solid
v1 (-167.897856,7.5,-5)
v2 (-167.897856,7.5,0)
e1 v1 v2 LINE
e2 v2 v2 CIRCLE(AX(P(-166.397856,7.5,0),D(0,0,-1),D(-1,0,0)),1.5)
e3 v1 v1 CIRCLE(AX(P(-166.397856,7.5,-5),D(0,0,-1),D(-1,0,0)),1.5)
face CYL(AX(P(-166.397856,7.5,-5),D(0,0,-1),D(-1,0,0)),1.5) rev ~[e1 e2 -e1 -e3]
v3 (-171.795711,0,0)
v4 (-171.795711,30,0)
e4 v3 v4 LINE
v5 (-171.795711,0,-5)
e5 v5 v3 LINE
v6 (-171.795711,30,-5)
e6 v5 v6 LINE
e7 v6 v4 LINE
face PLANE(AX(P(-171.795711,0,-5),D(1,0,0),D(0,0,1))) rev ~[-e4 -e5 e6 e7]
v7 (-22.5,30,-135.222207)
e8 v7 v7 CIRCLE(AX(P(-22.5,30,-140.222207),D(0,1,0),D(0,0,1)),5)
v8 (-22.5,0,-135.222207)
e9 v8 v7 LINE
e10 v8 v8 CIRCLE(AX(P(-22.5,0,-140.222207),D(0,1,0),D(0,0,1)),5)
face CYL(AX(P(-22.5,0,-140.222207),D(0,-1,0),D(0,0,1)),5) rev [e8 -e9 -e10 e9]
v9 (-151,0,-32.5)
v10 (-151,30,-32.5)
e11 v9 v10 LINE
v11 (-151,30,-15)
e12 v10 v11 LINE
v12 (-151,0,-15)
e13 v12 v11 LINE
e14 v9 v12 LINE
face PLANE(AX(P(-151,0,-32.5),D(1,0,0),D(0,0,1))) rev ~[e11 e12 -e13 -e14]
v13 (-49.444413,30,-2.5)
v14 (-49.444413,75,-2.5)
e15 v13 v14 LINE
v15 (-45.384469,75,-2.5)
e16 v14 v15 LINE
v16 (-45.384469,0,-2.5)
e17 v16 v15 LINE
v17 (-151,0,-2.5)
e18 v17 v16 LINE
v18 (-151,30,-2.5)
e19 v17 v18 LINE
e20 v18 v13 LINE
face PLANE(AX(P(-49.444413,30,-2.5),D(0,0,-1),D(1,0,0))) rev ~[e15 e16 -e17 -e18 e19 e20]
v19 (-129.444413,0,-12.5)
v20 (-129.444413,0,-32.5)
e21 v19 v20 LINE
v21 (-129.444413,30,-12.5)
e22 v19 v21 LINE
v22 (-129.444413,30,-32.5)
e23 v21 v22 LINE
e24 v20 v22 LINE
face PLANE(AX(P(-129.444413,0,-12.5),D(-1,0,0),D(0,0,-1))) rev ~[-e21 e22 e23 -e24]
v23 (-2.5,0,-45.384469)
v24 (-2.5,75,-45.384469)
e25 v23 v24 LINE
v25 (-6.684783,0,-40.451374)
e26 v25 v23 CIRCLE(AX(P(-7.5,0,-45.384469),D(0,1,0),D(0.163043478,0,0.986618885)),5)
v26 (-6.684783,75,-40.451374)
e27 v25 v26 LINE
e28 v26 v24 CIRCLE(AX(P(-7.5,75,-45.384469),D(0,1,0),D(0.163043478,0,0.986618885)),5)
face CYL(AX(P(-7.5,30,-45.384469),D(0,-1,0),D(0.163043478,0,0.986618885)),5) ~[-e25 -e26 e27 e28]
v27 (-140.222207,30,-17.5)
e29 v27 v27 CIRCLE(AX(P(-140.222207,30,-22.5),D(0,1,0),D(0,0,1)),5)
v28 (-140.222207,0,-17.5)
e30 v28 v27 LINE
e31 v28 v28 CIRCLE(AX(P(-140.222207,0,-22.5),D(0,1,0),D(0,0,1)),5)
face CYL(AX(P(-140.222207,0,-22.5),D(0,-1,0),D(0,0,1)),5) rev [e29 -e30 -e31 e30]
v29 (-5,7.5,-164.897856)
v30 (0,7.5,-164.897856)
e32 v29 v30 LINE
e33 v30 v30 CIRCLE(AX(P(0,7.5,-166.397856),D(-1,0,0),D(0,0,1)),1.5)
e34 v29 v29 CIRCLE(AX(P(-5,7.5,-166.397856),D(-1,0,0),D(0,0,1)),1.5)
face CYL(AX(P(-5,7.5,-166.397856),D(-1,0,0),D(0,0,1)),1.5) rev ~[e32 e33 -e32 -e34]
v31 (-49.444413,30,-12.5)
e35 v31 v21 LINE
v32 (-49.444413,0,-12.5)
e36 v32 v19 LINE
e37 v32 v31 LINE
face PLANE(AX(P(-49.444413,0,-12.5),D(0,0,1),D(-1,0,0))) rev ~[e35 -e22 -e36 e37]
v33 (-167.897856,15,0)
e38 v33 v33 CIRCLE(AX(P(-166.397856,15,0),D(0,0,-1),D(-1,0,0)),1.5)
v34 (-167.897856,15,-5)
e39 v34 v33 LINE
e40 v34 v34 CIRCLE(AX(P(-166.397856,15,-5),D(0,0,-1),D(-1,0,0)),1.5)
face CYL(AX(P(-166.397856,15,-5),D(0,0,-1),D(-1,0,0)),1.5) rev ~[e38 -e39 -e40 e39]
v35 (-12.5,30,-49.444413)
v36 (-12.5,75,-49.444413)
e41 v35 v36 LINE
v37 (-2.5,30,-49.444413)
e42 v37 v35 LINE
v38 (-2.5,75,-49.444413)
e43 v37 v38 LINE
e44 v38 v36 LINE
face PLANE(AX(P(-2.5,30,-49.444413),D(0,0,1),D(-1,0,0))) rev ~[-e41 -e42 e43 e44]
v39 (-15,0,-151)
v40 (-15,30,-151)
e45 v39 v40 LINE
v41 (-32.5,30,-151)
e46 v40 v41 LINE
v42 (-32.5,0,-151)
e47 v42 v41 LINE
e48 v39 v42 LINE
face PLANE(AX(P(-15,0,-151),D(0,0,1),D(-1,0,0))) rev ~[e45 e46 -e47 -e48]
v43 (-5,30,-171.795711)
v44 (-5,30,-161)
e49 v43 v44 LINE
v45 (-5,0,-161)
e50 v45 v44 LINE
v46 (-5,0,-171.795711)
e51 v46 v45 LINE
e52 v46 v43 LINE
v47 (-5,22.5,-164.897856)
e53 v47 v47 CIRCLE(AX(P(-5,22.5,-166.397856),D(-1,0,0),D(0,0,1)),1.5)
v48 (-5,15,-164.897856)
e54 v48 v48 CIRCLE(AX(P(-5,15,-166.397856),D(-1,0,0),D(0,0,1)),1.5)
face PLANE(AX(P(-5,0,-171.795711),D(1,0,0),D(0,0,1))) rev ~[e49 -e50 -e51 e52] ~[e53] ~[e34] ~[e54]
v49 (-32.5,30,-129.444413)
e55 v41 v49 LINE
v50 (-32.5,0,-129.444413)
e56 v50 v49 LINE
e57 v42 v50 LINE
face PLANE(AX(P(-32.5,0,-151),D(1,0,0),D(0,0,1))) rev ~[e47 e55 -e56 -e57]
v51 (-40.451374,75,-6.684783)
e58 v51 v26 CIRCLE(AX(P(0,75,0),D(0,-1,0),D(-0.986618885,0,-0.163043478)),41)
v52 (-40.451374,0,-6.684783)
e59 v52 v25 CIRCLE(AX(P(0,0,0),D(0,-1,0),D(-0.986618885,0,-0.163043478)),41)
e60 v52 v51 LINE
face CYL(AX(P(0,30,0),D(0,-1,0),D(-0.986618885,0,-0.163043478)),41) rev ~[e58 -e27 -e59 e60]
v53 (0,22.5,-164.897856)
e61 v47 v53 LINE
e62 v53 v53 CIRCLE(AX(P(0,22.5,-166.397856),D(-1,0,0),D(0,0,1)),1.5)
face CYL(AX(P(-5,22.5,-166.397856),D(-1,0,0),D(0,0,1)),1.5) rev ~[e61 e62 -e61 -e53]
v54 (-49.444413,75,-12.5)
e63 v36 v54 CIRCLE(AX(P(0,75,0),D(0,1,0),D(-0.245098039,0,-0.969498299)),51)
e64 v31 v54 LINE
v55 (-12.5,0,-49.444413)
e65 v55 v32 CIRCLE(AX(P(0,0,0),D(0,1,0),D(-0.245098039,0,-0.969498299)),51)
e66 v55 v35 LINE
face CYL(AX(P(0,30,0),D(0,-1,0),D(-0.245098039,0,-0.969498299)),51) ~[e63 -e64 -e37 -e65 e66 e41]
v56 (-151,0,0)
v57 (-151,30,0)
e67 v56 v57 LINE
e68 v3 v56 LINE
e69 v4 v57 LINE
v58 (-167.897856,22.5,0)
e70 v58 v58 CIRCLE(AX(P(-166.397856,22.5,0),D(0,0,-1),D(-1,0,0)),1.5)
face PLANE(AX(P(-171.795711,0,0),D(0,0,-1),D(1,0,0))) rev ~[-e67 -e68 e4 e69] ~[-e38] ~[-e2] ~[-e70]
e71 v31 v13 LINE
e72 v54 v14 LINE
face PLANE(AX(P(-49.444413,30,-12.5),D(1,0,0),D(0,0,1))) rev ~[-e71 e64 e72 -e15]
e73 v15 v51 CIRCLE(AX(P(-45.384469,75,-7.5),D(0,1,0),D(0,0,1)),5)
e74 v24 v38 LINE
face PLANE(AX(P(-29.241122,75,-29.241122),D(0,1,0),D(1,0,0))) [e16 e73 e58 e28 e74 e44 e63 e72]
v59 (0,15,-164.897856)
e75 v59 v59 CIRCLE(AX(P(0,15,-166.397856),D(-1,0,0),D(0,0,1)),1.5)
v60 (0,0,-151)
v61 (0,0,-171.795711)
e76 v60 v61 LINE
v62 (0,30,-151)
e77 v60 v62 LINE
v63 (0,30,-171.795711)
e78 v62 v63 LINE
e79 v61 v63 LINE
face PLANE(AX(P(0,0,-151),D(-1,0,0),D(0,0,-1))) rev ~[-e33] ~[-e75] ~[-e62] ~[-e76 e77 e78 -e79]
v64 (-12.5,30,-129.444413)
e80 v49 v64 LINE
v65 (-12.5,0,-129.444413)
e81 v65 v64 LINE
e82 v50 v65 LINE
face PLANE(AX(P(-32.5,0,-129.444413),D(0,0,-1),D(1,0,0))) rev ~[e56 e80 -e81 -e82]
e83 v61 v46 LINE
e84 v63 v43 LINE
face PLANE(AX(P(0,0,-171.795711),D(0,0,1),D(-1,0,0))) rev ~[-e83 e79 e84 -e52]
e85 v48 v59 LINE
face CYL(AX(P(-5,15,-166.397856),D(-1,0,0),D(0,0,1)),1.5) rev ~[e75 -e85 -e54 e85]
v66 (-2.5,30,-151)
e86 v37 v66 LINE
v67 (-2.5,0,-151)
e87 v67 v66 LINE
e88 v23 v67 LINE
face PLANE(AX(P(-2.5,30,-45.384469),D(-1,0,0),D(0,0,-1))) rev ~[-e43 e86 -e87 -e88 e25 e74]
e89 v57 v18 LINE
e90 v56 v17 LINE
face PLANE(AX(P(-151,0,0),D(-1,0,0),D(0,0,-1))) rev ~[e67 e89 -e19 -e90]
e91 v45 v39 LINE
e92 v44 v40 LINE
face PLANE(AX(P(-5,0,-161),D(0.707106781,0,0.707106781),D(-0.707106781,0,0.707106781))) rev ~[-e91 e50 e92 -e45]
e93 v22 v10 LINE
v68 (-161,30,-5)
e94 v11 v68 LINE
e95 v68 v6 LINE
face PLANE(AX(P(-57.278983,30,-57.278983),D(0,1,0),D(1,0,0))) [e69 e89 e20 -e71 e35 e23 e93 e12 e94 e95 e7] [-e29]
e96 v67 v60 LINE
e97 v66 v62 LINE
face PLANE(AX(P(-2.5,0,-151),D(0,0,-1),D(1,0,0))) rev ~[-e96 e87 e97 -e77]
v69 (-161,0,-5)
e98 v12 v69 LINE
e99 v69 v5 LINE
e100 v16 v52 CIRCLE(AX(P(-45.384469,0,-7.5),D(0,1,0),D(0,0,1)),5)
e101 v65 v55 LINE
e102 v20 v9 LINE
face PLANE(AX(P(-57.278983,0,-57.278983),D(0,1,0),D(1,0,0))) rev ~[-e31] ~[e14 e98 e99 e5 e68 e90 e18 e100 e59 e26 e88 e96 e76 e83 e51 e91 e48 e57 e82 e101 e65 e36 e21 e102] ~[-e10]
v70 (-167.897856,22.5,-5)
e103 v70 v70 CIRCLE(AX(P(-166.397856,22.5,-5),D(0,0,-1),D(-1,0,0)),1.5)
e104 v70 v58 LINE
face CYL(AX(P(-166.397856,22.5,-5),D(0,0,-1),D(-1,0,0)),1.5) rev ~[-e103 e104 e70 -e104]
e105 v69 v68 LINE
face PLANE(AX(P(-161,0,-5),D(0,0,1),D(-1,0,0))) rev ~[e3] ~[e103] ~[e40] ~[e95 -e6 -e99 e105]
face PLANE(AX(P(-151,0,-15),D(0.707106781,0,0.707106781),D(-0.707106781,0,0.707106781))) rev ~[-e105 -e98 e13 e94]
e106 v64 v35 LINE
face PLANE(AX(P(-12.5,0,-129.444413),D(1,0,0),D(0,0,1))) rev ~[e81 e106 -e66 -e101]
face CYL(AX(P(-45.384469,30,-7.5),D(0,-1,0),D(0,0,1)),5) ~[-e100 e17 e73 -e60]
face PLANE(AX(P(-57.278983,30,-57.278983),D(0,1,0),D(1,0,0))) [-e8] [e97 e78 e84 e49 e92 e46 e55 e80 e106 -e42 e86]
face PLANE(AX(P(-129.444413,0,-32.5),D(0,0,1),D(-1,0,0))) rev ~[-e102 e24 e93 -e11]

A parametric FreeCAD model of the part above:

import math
import FreeCAD as App
import Part
import Sketcher

V = App.Vector

doc = App.newDocument("Part")
params = doc.addObject("Spreadsheet::Sheet", "Params")
for row, (alias, value) in enumerate([
    ("sketch1_diameter", "10 mm"),
    ("sketch1_radius", "51 mm"),
    ("sketch1_radius2", "41 mm"),
    ("sketch1_width", "5 mm"),
    ("sketch1_width2", "20 mm"),
    ("pad1_length", "30 mm"),
    ("sketch2_diameter", "3 mm"),
    ("pocket1_length", "10 mm"),
    ("sketch3_diameter", "3 mm"),
    ("pocket2_length", "10 mm"),
    ("sketch4_radius", "5 mm"),
    ("sketch4_radius2", "41 mm"),
    ("sketch4_radius3", "51 mm"),
    ("sketch4_width", "10 mm"),
    ("pad2_length", "45 mm"),
], start=1):
    params.set(f"A{row}", alias)
    params.set(f"B{row}", "=" + value)
    params.setAlias(f"B{row}", alias)

body = doc.addObject("PartDesign::Body", "Body")

sketch1 = body.newObject("Sketcher::SketchObject", "Sketch")
sketch1.AttachmentSupport = (doc.getObject("XZ_Plane"), [""])
sketch1.MapMode = "FlatFace"
sketch1.addGeometry(Part.LineSegment(V(-2.5, -45.4, 0), V(-2.5, -151, 0)), False)
sketch1.addGeometry(Part.LineSegment(V(-2.5, -151, 0), V(0, -151, 0)), False)
sketch1.addGeometry(Part.LineSegment(V(0, -151, 0), V(0, -171.8, 0)), False)
sketch1.addGeometry(Part.LineSegment(V(0, -171.8, 0), V(-5, -171.8, 0)), False)
sketch1.addGeometry(Part.LineSegment(V(-5, -171.8, 0), V(-5, -161, 0)), False)
sketch1.addGeometry(Part.LineSegment(V(-5, -161, 0), V(-15, -151, 0)), False)
sketch1.addGeometry(Part.LineSegment(V(-15, -151, 0), V(-32.5, -151, 0)), False)
sketch1.addGeometry(Part.LineSegment(V(-32.5, -151, 0), V(-32.5, -129.4, 0)), False)
sketch1.addGeometry(Part.LineSegment(V(-32.5, -129.4, 0), V(-12.5, -129.4, 0)), False)
sketch1.addGeometry(Part.LineSegment(V(-12.5, -129.4, 0), V(-12.5, -49.4, 0)), False)
sketch1.addGeometry(Part.ArcOfCircle(Part.Circle(V(0, 0, 0), V(0, 0, 1), 51), math.radians(-166), math.radians(-104)), False)
sketch1.addGeometry(Part.LineSegment(V(-49.4, -12.5, 0), V(-129.4, -12.5, 0)), False)
sketch1.addGeometry(Part.LineSegment(V(-129.4, -12.5, 0), V(-129.4, -32.5, 0)), False)
sketch1.addGeometry(Part.LineSegment(V(-129.4, -32.5, 0), V(-151, -32.5, 0)), False)
sketch1.addGeometry(Part.LineSegment(V(-151, -32.5, 0), V(-151, -15, 0)), False)
sketch1.addGeometry(Part.LineSegment(V(-151, -15, 0), V(-161, -5, 0)), False)
sketch1.addGeometry(Part.LineSegment(V(-161, -5, 0), V(-171.8, -5, 0)), False)
sketch1.addGeometry(Part.LineSegment(V(-171.8, -5, 0), V(-171.8, 0, 0)), False)
sketch1.addGeometry(Part.LineSegment(V(-171.8, 0, 0), V(-151, 0, 0)), False)
sketch1.addGeometry(Part.LineSegment(V(-151, 0, 0), V(-151, -2.5, 0)), False)
sketch1.addGeometry(Part.LineSegment(V(-151, -2.5, 0), V(-45.4, -2.5, 0)), False)
sketch1.addGeometry(Part.ArcOfCircle(Part.Circle(V(-45.4, -7.5, 0), V(0, 0, 1), 5), math.radians(9), math.radians(90)), False)
sketch1.addGeometry(Part.ArcOfCircle(Part.Circle(V(0, 0, 0), V(0, 0, 1), 41), math.radians(-171), math.radians(-99)), False)
sketch1.addGeometry(Part.ArcOfCircle(Part.Circle(V(-7.5, -45.4, 0), V(0, 0, 1), 5), math.radians(0), math.radians(81)), False)
sketch1.addGeometry(Part.Circle(V(-140.2, -22.5, 0), V(0, 0, 1), 5), False)
sketch1.addGeometry(Part.Circle(V(-22.5, -140.2, 0), V(0, 0, 1), 5), False)
sketch1.addConstraint(Sketcher.Constraint("Coincident", 0, 2, 1, 1))
sketch1.addConstraint(Sketcher.Constraint("Coincident", 1, 2, 2, 1))
sketch1.addConstraint(Sketcher.Constraint("Coincident", 2, 2, 3, 1))
sketch1.addConstraint(Sketcher.Constraint("Coincident", 3, 2, 4, 1))
sketch1.addConstraint(Sketcher.Constraint("Coincident", 4, 2, 5, 1))
sketch1.addConstraint(Sketcher.Constraint("Coincident", 5, 2, 6, 1))
sketch1.addConstraint(Sketcher.Constraint("Coincident", 6, 2, 7, 1))
sketch1.addConstraint(Sketcher.Constraint("Coincident", 7, 2, 8, 1))
sketch1.addConstraint(Sketcher.Constraint("Coincident", 8, 2, 9, 1))
sketch1.addConstraint(Sketcher.Constraint("Coincident", 9, 2, 10, 2))
sketch1.addConstraint(Sketcher.Constraint("Coincident", 10, 1, 11, 1))
sketch1.addConstraint(Sketcher.Constraint("Coincident", 11, 2, 12, 1))
sketch1.addConstraint(Sketcher.Constraint("Coincident", 12, 2, 13, 1))
sketch1.addConstraint(Sketcher.Constraint("Coincident", 13, 2, 14, 1))
sketch1.addConstraint(Sketcher.Constraint("Coincident", 14, 2, 15, 1))
sketch1.addConstraint(Sketcher.Constraint("Coincident", 15, 2, 16, 1))
sketch1.addConstraint(Sketcher.Constraint("Coincident", 16, 2, 17, 1))
sketch1.addConstraint(Sketcher.Constraint("Coincident", 17, 2, 18, 1))
sketch1.addConstraint(Sketcher.Constraint("Coincident", 18, 2, 19, 1))
sketch1.addConstraint(Sketcher.Constraint("Coincident", 19, 2, 20, 1))
sketch1.addConstraint(Sketcher.Constraint("Tangent", 20, 2, 21, 2))
sketch1.addConstraint(Sketcher.Constraint("Tangent", 21, 1, 22, 1))
sketch1.addConstraint(Sketcher.Constraint("Tangent", 22, 2, 23, 2))
sketch1.addConstraint(Sketcher.Constraint("Tangent", 23, 1, 0, 1))
sketch1.addConstraint(Sketcher.Constraint("Vertical", 0))
sketch1.addConstraint(Sketcher.Constraint("Horizontal", 1))
sketch1.addConstraint(Sketcher.Constraint("Vertical", 2))
sketch1.addConstraint(Sketcher.Constraint("Horizontal", 3))
sketch1.addConstraint(Sketcher.Constraint("Vertical", 4))
sketch1.addConstraint(Sketcher.Constraint("Horizontal", 6))
sketch1.addConstraint(Sketcher.Constraint("Vertical", 7))
sketch1.addConstraint(Sketcher.Constraint("Horizontal", 8))
sketch1.addConstraint(Sketcher.Constraint("Vertical", 9))
sketch1.addConstraint(Sketcher.Constraint("Horizontal", 11))
sketch1.addConstraint(Sketcher.Constraint("Vertical", 12))
sketch1.addConstraint(Sketcher.Constraint("Horizontal", 13))
sketch1.addConstraint(Sketcher.Constraint("Vertical", 14))
sketch1.addConstraint(Sketcher.Constraint("Horizontal", 16))
sketch1.addConstraint(Sketcher.Constraint("Vertical", 17))
sketch1.addConstraint(Sketcher.Constraint("Horizontal", 18))
sketch1.addConstraint(Sketcher.Constraint("Vertical", 19))
sketch1.addConstraint(Sketcher.Constraint("Horizontal", 20))
sketch1.addConstraint(Sketcher.Constraint("Coincident", 10, 3, -1, 1))
sketch1.addConstraint(Sketcher.Constraint("Coincident", 22, 3, -1, 1))
sketch1.addConstraint(Sketcher.Constraint("Equal", 21, 23))
sketch1.addConstraint(Sketcher.Constraint("Equal", 23, 24))
sketch1.addConstraint(Sketcher.Constraint("Equal", 24, 25))
sketch1.addConstraint(Sketcher.Constraint("PointOnObject", 1, 2, -2))
sketch1.addConstraint(Sketcher.Constraint("PointOnObject", 17, 2, -1))
sketch1.addConstraint(Sketcher.Constraint("Parallel", 5, 15))
sketch1.addConstraint(Sketcher.Constraint("Horizontal", 1, 2, 5, 2))
sketch1.addConstraint(Sketcher.Constraint("Vertical", 14, 2, 18, 2))
sketch1.addConstraint(Sketcher.Constraint("Equal", 20, 0))
sketch1.addConstraint(Sketcher.Constraint("Equal", 18, 2))
sketch1.addConstraint(Sketcher.Constraint("Equal", 16, 4))
sketch1.addConstraint(Sketcher.Constraint("Equal", 13, 7))
sketch1.addConstraint(Sketcher.Constraint("Equal", 11, 9))
sketch1.addConstraint(Sketcher.Constraint("Equal", 8, 12))
sketch1.addConstraint(Sketcher.Constraint("Equal", 6, 14))
sketch1.addConstraint(Sketcher.Constraint("Equal", 3, 17))
sketch1.addConstraint(Sketcher.Constraint("Equal", 1, 19))
sketch1.addConstraint(Sketcher.Constraint("Diameter", 24, 10.0))
sketch1.addConstraint(Sketcher.Constraint("Radius", 10, 51.0))
sketch1.addConstraint(Sketcher.Constraint("Radius", 22, 41.0))
sketch1.addConstraint(Sketcher.Constraint("DistanceX", 3, 2, 3, 1, 5.0))
sketch1.addConstraint(Sketcher.Constraint("DistanceX", 8, 1, 8, 2, 20.0))
sketch1.addConstraint(Sketcher.Constraint("DistanceX", 11, 2, 11, 1, 80.0))
sketch1.addConstraint(Sketcher.Constraint("DistanceX", 1, 1, 1, 2, 2.5))
sketch1.addConstraint(Sketcher.Constraint("DistanceX", 6, 2, 6, 1, 17.5))
sketch1.addConstraint(Sketcher.Constraint("DistanceY", 0, 2, -1, 1, 151.0))
sketch1.addConstraint(Sketcher.Constraint("DistanceY", 4, 2, -1, 1, 161.0))
sketch1.addConstraint(Sketcher.Constraint("DistanceY", 24, 3, 21, 3, 15.0))
sketch1.addConstraint(Sketcher.Constraint("DistanceX", 25, 3, 23, 3, 15.0))
sketch1.addConstraint(Sketcher.Constraint("DistanceX", 16, 2, 16, 1, 10.795711))
sketch1.addConstraint(Sketcher.Constraint("DistanceX", 24, 3, -1, 1, 140.222207))
sketch1.addConstraint(Sketcher.Constraint("DistanceY", 25, 3, -1, 1, 140.222207))
sketch1.setExpression("Constraints[61]", "Params.sketch1_diameter")
sketch1.setExpression("Constraints[62]", "Params.sketch1_radius")
sketch1.setExpression("Constraints[63]", "Params.sketch1_radius2")
sketch1.setExpression("Constraints[64]", "Params.sketch1_width")
sketch1.setExpression("Constraints[65]", "Params.sketch1_width2")
pad1 = body.newObject("PartDesign::Pad", "Pad")
pad1.Profile = sketch1
pad1.setExpression("Length", "Params.pad1_length")
pad1.Reversed = True

sketch2 = body.newObject("Sketcher::SketchObject", "Sketch001")
sketch2.AttachmentSupport = (doc.getObject("YZ_Plane"), [""])
sketch2.MapMode = "FlatFace"
sketch2.AttachmentOffset = App.Placement(V(0, 0, -5), App.Rotation())
sketch2.addGeometry(Part.Circle(V(22.5, -166.4, 0), V(0, 0, 1), 1.5), False)
sketch2.addGeometry(Part.Circle(V(15, -166.4, 0), V(0, 0, 1), 1.5), False)
sketch2.addGeometry(Part.Circle(V(7.5, -166.4, 0), V(0, 0, 1), 1.5), False)
sketch2.addConstraint(Sketcher.Constraint("Equal", 0, 1))
sketch2.addConstraint(Sketcher.Constraint("Equal", 1, 2))
sketch2.addConstraint(Sketcher.Constraint("Horizontal", 0, 3, 1, 3))
sketch2.addConstraint(Sketcher.Constraint("Horizontal", 1, 3, 2, 3))
sketch2.addConstraint(Sketcher.Constraint("Diameter", 0, 3.0))
sketch2.addConstraint(Sketcher.Constraint("DistanceX", -1, 1, 1, 3, 15.0))
sketch2.addConstraint(Sketcher.Constraint("DistanceX", 2, 3, 0, 3, 15.0))
sketch2.addConstraint(Sketcher.Constraint("DistanceX", -1, 1, 0, 3, 22.5))
sketch2.addConstraint(Sketcher.Constraint("DistanceY", 0, 3, -1, 1, 166.397856))
sketch2.setExpression("Constraints[4]", "Params.sketch2_diameter")
pocket1 = body.newObject("PartDesign::Pocket", "Pocket")
pocket1.Profile = sketch2
pocket1.setExpression("Length", "Params.pocket1_length")
pocket1.Reversed = True

sketch3 = body.newObject("Sketcher::SketchObject", "Sketch002")
sketch3.AttachmentSupport = (doc.getObject("XY_Plane"), [""])
sketch3.MapMode = "FlatFace"
sketch3.AttachmentOffset = App.Placement(V(0, 0, -5), App.Rotation())
sketch3.addGeometry(Part.Circle(V(-166.4, 22.5, 0), V(0, 0, 1), 1.5), False)
sketch3.addGeometry(Part.Circle(V(-166.4, 15, 0), V(0, 0, 1), 1.5), False)
sketch3.addGeometry(Part.Circle(V(-166.4, 7.5, 0), V(0, 0, 1), 1.5), False)
sketch3.addConstraint(Sketcher.Constraint("Equal", 0, 1))
sketch3.addConstraint(Sketcher.Constraint("Equal", 1, 2))
sketch3.addConstraint(Sketcher.Constraint("Vertical", 0, 3, 1, 3))
sketch3.addConstraint(Sketcher.Constraint("Vertical", 1, 3, 2, 3))
sketch3.addConstraint(Sketcher.Constraint("Diameter", 0, 3.0))
sketch3.addConstraint(Sketcher.Constraint("DistanceY", -1, 1, 1, 3, 15.0))
sketch3.addConstraint(Sketcher.Constraint("DistanceY", 2, 3, 0, 3, 15.0))
sketch3.addConstraint(Sketcher.Constraint("DistanceY", -1, 1, 0, 3, 22.5))
sketch3.addConstraint(Sketcher.Constraint("DistanceX", 0, 3, -1, 1, 166.397856))
sketch3.setExpression("Constraints[4]", "Params.sketch3_diameter")
pocket2 = body.newObject("PartDesign::Pocket", "Pocket001")
pocket2.Profile = sketch3
pocket2.setExpression("Length", "Params.pocket2_length")
pocket2.Reversed = True

sketch4 = body.newObject("Sketcher::SketchObject", "Sketch003")
sketch4.AttachmentSupport = (doc.getObject("XZ_Plane"), [""])
sketch4.MapMode = "FlatFace"
sketch4.AttachmentOffset = App.Placement(V(0, 0, -30), App.Rotation())
sketch4.addGeometry(Part.LineSegment(V(-49.4, -12.5, 0), V(-49.4, -2.5, 0)), False)
sketch4.addGeometry(Part.LineSegment(V(-49.4, -2.5, 0), V(-45.4, -2.5, 0)), False)
sketch4.addGeometry(Part.ArcOfCircle(Part.Circle(V(-45.4, -7.5, 0), V(0, 0, 1), 5), math.radians(9), math.radians(90)), False)
sketch4.addGeometry(Part.ArcOfCircle(Part.Circle(V(0, 0, 0), V(0, 0, 1), 41), math.radians(-171), math.radians(-99)), False)
sketch4.addGeometry(Part.ArcOfCircle(Part.Circle(V(-7.5, -45.4, 0), V(0, 0, 1), 5), math.radians(0), math.radians(81)), False)
sketch4.addGeometry(Part.LineSegment(V(-2.5, -45.4, 0), V(-2.5, -49.4, 0)), False)
sketch4.addGeometry(Part.LineSegment(V(-2.5, -49.4, 0), V(-12.5, -49.4, 0)), False)
sketch4.addGeometry(Part.ArcOfCircle(Part.Circle(V(0, 0, 0), V(0, 0, 1), 51), math.radians(-166), math.radians(-104)), False)
sketch4.addConstraint(Sketcher.Constraint("Coincident", 0, 2, 1, 1))
sketch4.addConstraint(Sketcher.Constraint("Tangent", 1, 2, 2, 2))
sketch4.addConstraint(Sketcher.Constraint("Tangent", 2, 1, 3, 1))
sketch4.addConstraint(Sketcher.Constraint("Tangent", 3, 2, 4, 2))
sketch4.addConstraint(Sketcher.Constraint("Tangent", 4, 1, 5, 1))
sketch4.addConstraint(Sketcher.Constraint("Coincident", 5, 2, 6, 1))
sketch4.addConstraint(Sketcher.Constraint("Coincident", 6, 2, 7, 2))
sketch4.addConstraint(Sketcher.Constraint("Coincident", 7, 1, 0, 1))
sketch4.addConstraint(Sketcher.Constraint("Vertical", 0))
sketch4.addConstraint(Sketcher.Constraint("Horizontal", 1))
sketch4.addConstraint(Sketcher.Constraint("Vertical", 5))
sketch4.addConstraint(Sketcher.Constraint("Horizontal", 6))
sketch4.addConstraint(Sketcher.Constraint("Coincident", 3, 3, -1, 1))
sketch4.addConstraint(Sketcher.Constraint("Coincident", 7, 3, -1, 1))
sketch4.addConstraint(Sketcher.Constraint("Equal", 2, 4))
sketch4.addConstraint(Sketcher.Constraint("Equal", 6, 0))
sketch4.addConstraint(Sketcher.Constraint("Equal", 1, 5))
sketch4.addConstraint(Sketcher.Constraint("Radius", 2, 5.0))
sketch4.addConstraint(Sketcher.Constraint("Radius", 3, 41.0))
sketch4.addConstraint(Sketcher.Constraint("Radius", 7, 51.0))
sketch4.addConstraint(Sketcher.Constraint("DistanceX", 6, 2, 6, 1, 10.0))
sketch4.addConstraint(Sketcher.Constraint("DistanceY", 2, 3, -1, 1, 7.5))
sketch4.setExpression("Constraints[17]", "Params.sketch4_radius")
sketch4.setExpression("Constraints[18]", "Params.sketch4_radius2")
sketch4.setExpression("Constraints[19]", "Params.sketch4_radius3")
sketch4.setExpression("Constraints[20]", "Params.sketch4_width")
pad2 = body.newObject("PartDesign::Pad", "Pad001")
pad2.Profile = sketch4
pad2.setExpression("Length", "Params.pad2_length")
pad2.Reversed = True

doc.recompute()
